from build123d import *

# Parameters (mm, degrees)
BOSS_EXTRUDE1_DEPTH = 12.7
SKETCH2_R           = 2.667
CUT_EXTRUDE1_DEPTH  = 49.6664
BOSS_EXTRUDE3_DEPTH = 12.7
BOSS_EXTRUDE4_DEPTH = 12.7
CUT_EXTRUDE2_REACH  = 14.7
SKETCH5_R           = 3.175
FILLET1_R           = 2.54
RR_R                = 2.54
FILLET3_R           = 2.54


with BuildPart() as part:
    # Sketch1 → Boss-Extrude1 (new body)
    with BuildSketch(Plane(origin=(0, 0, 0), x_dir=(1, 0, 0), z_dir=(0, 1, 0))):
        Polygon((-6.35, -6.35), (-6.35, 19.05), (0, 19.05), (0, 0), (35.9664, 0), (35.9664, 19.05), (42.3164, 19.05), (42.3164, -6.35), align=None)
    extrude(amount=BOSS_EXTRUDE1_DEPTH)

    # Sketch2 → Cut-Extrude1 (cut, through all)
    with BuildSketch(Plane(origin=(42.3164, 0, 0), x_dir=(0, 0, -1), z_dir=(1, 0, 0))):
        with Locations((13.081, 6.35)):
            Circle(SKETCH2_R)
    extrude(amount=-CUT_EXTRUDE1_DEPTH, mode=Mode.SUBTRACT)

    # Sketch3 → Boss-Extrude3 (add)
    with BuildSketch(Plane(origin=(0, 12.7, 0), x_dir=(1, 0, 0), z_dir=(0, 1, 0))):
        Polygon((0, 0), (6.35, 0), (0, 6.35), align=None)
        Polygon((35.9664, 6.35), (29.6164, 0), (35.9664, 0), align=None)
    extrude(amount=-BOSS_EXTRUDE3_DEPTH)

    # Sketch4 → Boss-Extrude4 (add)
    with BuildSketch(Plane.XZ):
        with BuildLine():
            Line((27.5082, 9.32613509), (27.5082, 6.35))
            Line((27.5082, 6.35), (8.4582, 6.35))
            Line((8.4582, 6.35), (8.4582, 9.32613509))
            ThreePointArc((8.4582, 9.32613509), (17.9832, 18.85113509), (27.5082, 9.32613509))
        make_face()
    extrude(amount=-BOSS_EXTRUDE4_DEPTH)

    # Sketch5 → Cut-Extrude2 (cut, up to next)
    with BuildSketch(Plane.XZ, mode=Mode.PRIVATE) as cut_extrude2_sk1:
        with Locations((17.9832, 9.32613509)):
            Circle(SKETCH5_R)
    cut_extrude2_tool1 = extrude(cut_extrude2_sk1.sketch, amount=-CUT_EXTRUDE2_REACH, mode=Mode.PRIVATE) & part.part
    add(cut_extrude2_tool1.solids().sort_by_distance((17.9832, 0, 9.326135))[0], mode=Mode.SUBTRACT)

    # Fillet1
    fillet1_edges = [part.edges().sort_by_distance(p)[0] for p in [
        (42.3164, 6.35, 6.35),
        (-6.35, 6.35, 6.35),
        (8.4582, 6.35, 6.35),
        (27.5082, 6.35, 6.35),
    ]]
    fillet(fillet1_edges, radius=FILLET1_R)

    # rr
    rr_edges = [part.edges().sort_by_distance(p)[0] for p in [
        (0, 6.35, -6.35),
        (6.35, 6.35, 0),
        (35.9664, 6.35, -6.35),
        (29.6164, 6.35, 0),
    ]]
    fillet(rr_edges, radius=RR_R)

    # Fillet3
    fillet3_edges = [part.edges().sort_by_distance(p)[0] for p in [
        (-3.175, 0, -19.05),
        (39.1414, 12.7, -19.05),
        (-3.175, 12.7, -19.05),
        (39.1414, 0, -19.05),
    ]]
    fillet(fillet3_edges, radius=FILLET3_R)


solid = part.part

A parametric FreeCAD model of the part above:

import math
import FreeCAD as App
import Part
import Sketcher
from FreeCAD import Vector
Q = App.Units.Quantity


def edges_at(feature, points):
    """Names of the edges that pass closest to the given points."""
    edges = feature.Shape.Edges
    near = lambda p: min(range(len(edges)), key=lambda i: edges[i].distToShape(Part.Vertex(*p))[0])
    return sorted({f"Edge{near(p) + 1}" for p in points})

doc = App.newDocument("Part")
body = doc.addObject("PartDesign::Body", "Body")

sketch1 = body.newObject("Sketcher::SketchObject", "Sketch")
sketch1.AttachmentSupport = (doc.getObject("XZ_Plane"), [""])
sketch1.MapMode = "FlatFace"
sketch1.addGeometry(Part.LineSegment(Vector(-6, -19, 0), Vector(-6, 6, 0)), False)
sketch1.addGeometry(Part.LineSegment(Vector(-6, 6, 0), Vector(42, 6, 0)), False)
sketch1.addGeometry(Part.LineSegment(Vector(42, 6, 0), Vector(42, -19, 0)), False)
sketch1.addGeometry(Part.LineSegment(Vector(42, -19, 0), Vector(36, -19, 0)), False)
sketch1.addGeometry(Part.LineSegment(Vector(36, -19, 0), Vector(36, 0, 0)), False)
sketch1.addGeometry(Part.LineSegment(Vector(36, 0, 0), Vector(0, 0, 0)), False)
sketch1.addGeometry(Part.LineSegment(Vector(0, 0, 0), Vector(0, -19, 0)), False)
sketch1.addGeometry(Part.LineSegment(Vector(0, -19, 0), Vector(-6, -19, 0)), False)
sketch1.addConstraint(Sketcher.Constraint("Coincident", 0, 2, 1, 1))
sketch1.addConstraint(Sketcher.Constraint("Coincident", 1, 2, 2, 1))
sketch1.addConstraint(Sketcher.Constraint("Coincident", 2, 2, 3, 1))
sketch1.addConstraint(Sketcher.Constraint("Coincident", 3, 2, 4, 1))
sketch1.addConstraint(Sketcher.Constraint("Coincident", 4, 2, 5, 1))
sketch1.addConstraint(Sketcher.Constraint("Coincident", 5, 2, 6, 1))
sketch1.addConstraint(Sketcher.Constraint("Coincident", 6, 2, 7, 1))
sketch1.addConstraint(Sketcher.Constraint("Coincident", 7, 2, 0, 1))
sketch1.addConstraint(Sketcher.Constraint("Vertical", 0))
sketch1.addConstraint(Sketcher.Constraint("Horizontal", 1))
sketch1.addConstraint(Sketcher.Constraint("Vertical", 2))
sketch1.addConstraint(Sketcher.Constraint("Horizontal", 3))
sketch1.addConstraint(Sketcher.Constraint("Vertical", 4))
sketch1.addConstraint(Sketcher.Constraint("Horizontal", 5))
sketch1.addConstraint(Sketcher.Constraint("Vertical", 6))
sketch1.addConstraint(Sketcher.Constraint("Horizontal", 7))
sketch1.addConstraint(Sketcher.Constraint("Coincident", 5, 2, -1, 1))
sketch1.addConstraint(Sketcher.Constraint("Horizontal", 3, 2, 6, 2))
sketch1.addConstraint(Sketcher.Constraint("Equal", 3, 7))
sketch1.addConstraint(Sketcher.Constraint("DistanceY", 0, 1, 0, 2, Q("1 in")))
sketch1.addConstraint(Sketcher.Constraint("DistanceX", 3, 2, 3, 1, Q("0.25 in")))
sketch1.addConstraint(Sketcher.Constraint("DistanceY", 4, 1, 4, 2, Q("0.75 in")))
sketch1.addConstraint(Sketcher.Constraint("DistanceX", 1, 1, 1, 2, Q("1.916 in")))
pad1 = body.newObject("PartDesign::Pad", "Pad")
pad1.Profile = sketch1
pad1.Length = Q("0.5 in")
pad1.Reversed = True

sketch2 = body.newObject("Sketcher::SketchObject", "Sketch001")
sketch2.AttachmentSupport = (doc.getObject("YZ_Plane"), [""])
sketch2.MapMode = "FlatFace"
sketch2.AttachmentOffset = App.Placement(Vector(0, 0, 1.666 * 25.4), App.Rotation())
sketch2.addGeometry(Part.Circle(Vector(6.3, -13.1, 0), Vector(0, 0, 1), 2.7), False)
sketch2.addConstraint(Sketcher.Constraint("Diameter", 0, Q("0.21 in")))
sketch2.addConstraint(Sketcher.Constraint("DistanceX", -1, 1, 0, 3, Q("0.25 in")))
sketch2.addConstraint(Sketcher.Constraint("DistanceY", 0, 3, -1, 1, Q("0.515 in")))
pocket1 = body.newObject("PartDesign::Pocket", "Pocket")
pocket1.Profile = sketch2
pocket1.Type = "ThroughAll"

sketch3 = body.newObject("Sketcher::SketchObject", "Sketch002")
sketch3.AttachmentSupport = (doc.getObject("XZ_Plane"), [""])
sketch3.MapMode = "FlatFace"
sketch3.AttachmentOffset = App.Placement(Vector(0, 0, -0.5 * 25.4), App.Rotation())
sketch3.addGeometry(Part.LineSegment(Vector(0, 0, 0), Vector(6, 0, 0)), False)
sketch3.addGeometry(Part.LineSegment(Vector(6, 0, 0), Vector(0, -6, 0)), False)
sketch3.addGeometry(Part.LineSegment(Vector(0, -6, 0), Vector(0, 0, 0)), False)
sketch3.addGeometry(Part.LineSegment(Vector(36, -6, 0), Vector(30, 0, 0)), False)
sketch3.addGeometry(Part.LineSegment(Vector(30, 0, 0), Vector(36, 0, 0)), False)
sketch3.addGeometry(Part.LineSegment(Vector(36, 0, 0), Vector(36, -6, 0)), False)
sketch3.addConstraint(Sketcher.Constraint("Coincident", 0, 2, 1, 1))
sketch3.addConstraint(Sketcher.Constraint("Coincident", 1, 2, 2, 1))
sketch3.addConstraint(Sketcher.Constraint("Coincident", 2, 2, 0, 1))
sketch3.addConstraint(Sketcher.Constraint("Coincident", 3, 2, 4, 1))
sketch3.addConstraint(Sketcher.Constraint("Coincident", 4, 2, 5, 1))
sketch3.addConstraint(Sketcher.Constraint("Coincident", 5, 2, 3, 1))
sketch3.addConstraint(Sketcher.Constraint("Horizontal", 0))
sketch3.addConstraint(Sketcher.Constraint("Vertical", 2))
sketch3.addConstraint(Sketcher.Constraint("Horizontal", 4))
sketch3.addConstraint(Sketcher.Constraint("Vertical", 5))
sketch3.addConstraint(Sketcher.Constraint("Coincident", 2, 2, -1, 1))
sketch3.addConstraint(Sketcher.Constraint("PointOnObject", 3, 2, -1))
sketch3.addConstraint(Sketcher.Constraint("Perpendicular", 1, 3))
sketch3.addConstraint(Sketcher.Constraint("Horizontal", 1, 2, 5, 2))
sketch3.addConstraint(Sketcher.Constraint("Equal", 0, 4))
sketch3.addConstraint(Sketcher.Constraint("DistanceX", 0, 1, 0, 2, Q("0.25 in")))
sketch3.addConstraint(Sketcher.Constraint("DistanceX", -1, 1, 3, 2, Q("1.166 in")))
pad2 = body.newObject("PartDesign::Pad", "Pad001")
pad2.Profile = sketch3
pad2.Length = Q("0.5 in")

sketch4 = body.newObject("Sketcher::SketchObject", "Sketch003")
sketch4.AttachmentSupport = (doc.getObject("XZ_Plane"), [""])
sketch4.MapMode = "FlatFace"
sketch4.addGeometry(Part.LineSegment(Vector(27.5, 6.3, 0), Vector(27.5, 9.3, 0)), False)
sketch4.addGeometry(Part.ArcOfCircle(Part.Circle(Vector(18, 9.3, 0), Vector(0, 0, 1), 9.5), math.radians(0), math.radians(180)), False)
sketch4.addGeometry(Part.LineSegment(Vector(8.5, 9.3, 0), Vector(8.5, 6.3, 0)), False)
sketch4.addGeometry(Part.LineSegment(Vector(8.5, 6.3, 0), Vector(27.5, 6.3, 0)), False)
sketch4.addConstraint(Sketcher.Constraint("Tangent", 0, 2, 1, 1))
sketch4.addConstraint(Sketcher.Constraint("Tangent", 1, 2, 2, 1))
sketch4.addConstraint(Sketcher.Constraint("Coincident", 2, 2, 3, 1))
sketch4.addConstraint(Sketcher.Constraint("Coincident", 3, 2, 0, 1))
sketch4.addConstraint(Sketcher.Constraint("Vertical", 0))
sketch4.addConstraint(Sketcher.Constraint("Vertical", 2))
sketch4.addConstraint(Sketcher.Constraint("Horizontal", 3))
sketch4.addConstraint(Sketcher.Constraint("Radius", 1, Q("0.375 in")))
sketch4.addConstraint(Sketcher.Constraint("DistanceY", -1, 1, 2, 2, Q("0.25 in")))
sketch4.addConstraint(Sketcher.Constraint("DistanceX", -1, 1, 1, 3, Q("0.708 in")))
sketch4.addConstraint(Sketcher.Constraint("DistanceY", 0, 1, 0, 2, 2.976135))
pad3 = body.newObject("PartDesign::Pad", "Pad002")
pad3.Profile = sketch4
pad3.Length = Q("0.5 in")
pad3.Reversed = True

sketch5 = body.newObject("Sketcher::SketchObject", "Sketch004")
sketch5.AttachmentSupport = (doc.getObject("XZ_Plane"), [""])
sketch5.MapMode = "FlatFace"
sketch5.addGeometry(Part.Circle(Vector(18, 9.3, 0), Vector(0, 0, 1), 3.2), False)
sketch5.addConstraint(Sketcher.Constraint("Diameter", 0, Q("0.25 in")))
sketch5.addConstraint(Sketcher.Constraint("DistanceX", -1, 1, 0, 3, Q("0.708 in")))
sketch5.addConstraint(Sketcher.Constraint("DistanceY", -1, 1, 0, 3, 9.326135))
pocket2 = body.newObject("PartDesign::Pocket", "Pocket001")
pocket2.Profile = sketch5
pocket2.Type = "UpToFirst"
doc.recompute()

fillet = body.newObject("PartDesign::Fillet", "Fillet")
fillet.Base = (pocket2, edges_at(pocket2, [
    (42.316, 6.35, 6.35),
    (-6.35, 6.35, 6.35),
    (8.458, 6.35, 6.35),
    (27.508, 6.35, 6.35),
]))
fillet.Radius = Q("0.1 in")
doc.recompute()

fillet2 = body.newObject("PartDesign::Fillet", "Fillet001")
fillet2.Base = (fillet, edges_at(fillet, [
    (0, 6.35, -6.35),
    (6.35, 6.35, 0),
    (35.966, 6.35, -6.35),
    (29.616, 6.35, 0),
]))
fillet2.Radius = Q("0.1 in")
doc.recompute()

fillet3 = body.newObject("PartDesign::Fillet", "Fillet002")
fillet3.Base = (fillet2, edges_at(fillet2, [
    (-3.175, 0, -19.05),
    (39.141, 12.7, -19.05),
    (-3.175, 12.7, -19.05),
    (39.141, 0, -19.05),
]))
fillet3.Radius = Q("0.1 in")

doc.recompute()
